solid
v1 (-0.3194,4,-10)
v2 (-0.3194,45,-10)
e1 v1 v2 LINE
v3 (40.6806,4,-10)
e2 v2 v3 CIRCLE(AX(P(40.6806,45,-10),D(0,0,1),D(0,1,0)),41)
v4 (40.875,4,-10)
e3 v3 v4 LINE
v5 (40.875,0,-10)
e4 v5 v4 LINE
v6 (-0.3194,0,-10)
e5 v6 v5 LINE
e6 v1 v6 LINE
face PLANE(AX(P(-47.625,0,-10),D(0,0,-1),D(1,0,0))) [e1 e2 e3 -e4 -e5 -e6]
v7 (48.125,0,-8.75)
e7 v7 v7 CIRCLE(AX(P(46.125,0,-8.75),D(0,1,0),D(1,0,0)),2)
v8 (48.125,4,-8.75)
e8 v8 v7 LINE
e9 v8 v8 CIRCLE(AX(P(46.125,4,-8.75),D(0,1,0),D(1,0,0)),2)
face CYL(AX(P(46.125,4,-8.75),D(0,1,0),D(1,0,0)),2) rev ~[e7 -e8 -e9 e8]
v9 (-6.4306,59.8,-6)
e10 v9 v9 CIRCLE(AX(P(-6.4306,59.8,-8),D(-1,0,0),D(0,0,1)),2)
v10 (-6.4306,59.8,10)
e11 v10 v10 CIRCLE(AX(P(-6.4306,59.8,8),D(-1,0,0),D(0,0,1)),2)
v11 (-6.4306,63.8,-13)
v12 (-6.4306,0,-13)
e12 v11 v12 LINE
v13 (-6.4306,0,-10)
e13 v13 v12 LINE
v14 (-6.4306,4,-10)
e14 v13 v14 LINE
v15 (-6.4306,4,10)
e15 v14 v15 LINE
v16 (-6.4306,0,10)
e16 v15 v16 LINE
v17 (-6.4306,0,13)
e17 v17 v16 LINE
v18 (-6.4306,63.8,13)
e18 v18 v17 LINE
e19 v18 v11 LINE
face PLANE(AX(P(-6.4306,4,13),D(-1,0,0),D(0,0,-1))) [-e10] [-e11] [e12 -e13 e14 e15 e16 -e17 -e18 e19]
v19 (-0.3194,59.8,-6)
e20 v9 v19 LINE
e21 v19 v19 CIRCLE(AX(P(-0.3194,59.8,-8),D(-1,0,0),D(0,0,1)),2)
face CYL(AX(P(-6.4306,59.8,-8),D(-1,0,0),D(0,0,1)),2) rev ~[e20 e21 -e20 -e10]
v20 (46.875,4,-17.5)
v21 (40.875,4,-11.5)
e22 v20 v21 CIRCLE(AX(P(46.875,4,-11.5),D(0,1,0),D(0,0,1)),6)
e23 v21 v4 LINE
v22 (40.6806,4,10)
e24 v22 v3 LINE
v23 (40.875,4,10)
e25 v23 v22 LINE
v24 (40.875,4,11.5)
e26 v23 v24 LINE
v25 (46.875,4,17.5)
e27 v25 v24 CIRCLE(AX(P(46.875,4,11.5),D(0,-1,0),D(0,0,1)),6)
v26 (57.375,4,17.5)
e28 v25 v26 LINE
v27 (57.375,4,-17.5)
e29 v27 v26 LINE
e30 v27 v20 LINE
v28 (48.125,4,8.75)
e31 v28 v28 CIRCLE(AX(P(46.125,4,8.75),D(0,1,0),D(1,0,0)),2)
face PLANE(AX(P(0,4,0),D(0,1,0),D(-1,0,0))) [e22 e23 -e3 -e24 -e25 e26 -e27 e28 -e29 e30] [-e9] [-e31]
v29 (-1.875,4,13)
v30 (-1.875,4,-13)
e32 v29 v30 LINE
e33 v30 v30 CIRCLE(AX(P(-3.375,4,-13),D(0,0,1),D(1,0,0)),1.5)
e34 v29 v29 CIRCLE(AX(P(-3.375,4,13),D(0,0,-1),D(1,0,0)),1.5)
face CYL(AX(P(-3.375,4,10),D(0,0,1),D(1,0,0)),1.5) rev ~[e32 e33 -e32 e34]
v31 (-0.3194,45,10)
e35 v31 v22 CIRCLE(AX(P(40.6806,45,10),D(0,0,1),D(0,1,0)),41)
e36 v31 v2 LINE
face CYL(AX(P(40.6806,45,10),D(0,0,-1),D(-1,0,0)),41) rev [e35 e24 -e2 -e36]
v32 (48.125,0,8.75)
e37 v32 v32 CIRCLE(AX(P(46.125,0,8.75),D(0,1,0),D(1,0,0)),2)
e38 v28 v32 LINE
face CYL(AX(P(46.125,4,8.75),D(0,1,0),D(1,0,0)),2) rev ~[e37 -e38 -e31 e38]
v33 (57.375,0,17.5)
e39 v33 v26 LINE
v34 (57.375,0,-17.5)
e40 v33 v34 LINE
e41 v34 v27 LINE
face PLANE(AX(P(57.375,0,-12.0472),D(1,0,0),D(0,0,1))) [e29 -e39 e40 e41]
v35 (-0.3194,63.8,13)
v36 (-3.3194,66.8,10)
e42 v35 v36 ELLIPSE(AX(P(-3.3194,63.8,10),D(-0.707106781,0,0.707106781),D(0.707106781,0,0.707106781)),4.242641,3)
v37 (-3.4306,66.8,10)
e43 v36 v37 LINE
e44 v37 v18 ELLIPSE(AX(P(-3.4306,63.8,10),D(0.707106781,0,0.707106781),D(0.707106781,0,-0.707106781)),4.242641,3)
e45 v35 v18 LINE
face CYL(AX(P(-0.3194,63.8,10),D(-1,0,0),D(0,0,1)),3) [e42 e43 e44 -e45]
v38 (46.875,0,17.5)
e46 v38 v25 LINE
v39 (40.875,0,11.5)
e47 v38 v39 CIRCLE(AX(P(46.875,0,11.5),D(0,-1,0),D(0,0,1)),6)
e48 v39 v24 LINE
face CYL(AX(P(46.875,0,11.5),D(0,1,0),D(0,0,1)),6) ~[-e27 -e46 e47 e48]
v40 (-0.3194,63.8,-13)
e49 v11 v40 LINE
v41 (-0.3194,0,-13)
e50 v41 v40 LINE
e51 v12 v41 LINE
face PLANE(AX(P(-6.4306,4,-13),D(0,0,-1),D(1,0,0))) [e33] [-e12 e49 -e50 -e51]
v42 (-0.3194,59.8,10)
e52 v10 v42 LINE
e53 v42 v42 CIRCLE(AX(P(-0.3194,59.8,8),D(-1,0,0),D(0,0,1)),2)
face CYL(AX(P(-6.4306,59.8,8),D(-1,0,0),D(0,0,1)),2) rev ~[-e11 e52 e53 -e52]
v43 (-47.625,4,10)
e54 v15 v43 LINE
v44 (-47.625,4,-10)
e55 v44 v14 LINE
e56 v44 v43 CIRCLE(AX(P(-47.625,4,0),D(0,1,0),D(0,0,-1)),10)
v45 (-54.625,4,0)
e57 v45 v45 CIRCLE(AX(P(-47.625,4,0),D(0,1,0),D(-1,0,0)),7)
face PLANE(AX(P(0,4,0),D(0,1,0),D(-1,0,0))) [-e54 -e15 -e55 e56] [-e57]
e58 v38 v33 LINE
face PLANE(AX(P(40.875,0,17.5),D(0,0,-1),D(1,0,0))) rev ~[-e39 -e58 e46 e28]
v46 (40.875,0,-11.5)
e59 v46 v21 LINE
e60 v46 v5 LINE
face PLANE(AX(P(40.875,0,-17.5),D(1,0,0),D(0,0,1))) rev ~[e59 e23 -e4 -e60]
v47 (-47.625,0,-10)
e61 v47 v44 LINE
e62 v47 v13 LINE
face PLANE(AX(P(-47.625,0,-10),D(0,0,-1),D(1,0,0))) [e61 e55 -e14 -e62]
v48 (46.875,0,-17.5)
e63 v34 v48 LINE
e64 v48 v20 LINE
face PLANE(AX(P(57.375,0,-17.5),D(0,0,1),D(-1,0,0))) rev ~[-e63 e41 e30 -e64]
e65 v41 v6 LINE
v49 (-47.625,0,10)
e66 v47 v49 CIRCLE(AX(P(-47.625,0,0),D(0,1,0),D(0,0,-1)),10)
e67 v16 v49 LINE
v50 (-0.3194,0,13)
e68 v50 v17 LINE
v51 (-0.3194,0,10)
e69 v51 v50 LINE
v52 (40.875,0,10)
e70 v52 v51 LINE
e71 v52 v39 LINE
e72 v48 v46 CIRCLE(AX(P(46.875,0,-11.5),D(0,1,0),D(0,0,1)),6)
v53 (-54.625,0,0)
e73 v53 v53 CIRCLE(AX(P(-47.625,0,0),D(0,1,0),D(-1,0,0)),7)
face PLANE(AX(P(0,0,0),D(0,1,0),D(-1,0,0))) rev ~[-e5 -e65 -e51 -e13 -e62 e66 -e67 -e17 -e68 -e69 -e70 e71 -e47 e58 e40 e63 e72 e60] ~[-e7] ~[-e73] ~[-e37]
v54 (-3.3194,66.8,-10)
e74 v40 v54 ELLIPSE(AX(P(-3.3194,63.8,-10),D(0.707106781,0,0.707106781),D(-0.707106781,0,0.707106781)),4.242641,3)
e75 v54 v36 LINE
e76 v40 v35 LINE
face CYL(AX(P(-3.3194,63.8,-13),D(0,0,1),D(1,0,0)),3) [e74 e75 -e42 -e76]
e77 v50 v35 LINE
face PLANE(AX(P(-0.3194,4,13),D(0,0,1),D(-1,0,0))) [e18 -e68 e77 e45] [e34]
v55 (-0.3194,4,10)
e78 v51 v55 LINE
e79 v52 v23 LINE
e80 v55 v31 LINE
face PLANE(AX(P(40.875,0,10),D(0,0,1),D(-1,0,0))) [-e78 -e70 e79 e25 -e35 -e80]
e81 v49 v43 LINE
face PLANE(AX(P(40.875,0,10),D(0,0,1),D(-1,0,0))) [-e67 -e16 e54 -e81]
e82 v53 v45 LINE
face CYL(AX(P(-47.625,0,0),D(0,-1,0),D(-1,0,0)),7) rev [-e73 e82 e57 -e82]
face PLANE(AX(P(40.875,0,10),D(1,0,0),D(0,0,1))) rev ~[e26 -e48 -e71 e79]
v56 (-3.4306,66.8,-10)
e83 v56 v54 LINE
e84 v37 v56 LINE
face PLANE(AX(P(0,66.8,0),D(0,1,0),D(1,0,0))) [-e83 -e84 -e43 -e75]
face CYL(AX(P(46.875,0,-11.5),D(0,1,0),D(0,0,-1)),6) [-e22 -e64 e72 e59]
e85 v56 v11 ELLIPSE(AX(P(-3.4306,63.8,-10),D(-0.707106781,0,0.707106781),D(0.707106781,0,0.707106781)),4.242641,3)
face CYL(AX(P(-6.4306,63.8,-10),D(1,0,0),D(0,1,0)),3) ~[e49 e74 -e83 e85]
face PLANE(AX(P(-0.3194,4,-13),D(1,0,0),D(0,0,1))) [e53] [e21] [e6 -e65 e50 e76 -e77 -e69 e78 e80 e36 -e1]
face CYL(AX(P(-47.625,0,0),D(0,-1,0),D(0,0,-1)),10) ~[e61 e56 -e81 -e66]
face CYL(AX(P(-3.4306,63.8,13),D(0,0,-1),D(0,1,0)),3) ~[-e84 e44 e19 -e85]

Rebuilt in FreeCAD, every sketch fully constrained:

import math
import FreeCAD as App
import Part
import Sketcher
from FreeCAD import Vector


def edges_at(feature, points):
    """Names of the edges that pass closest to the given points."""
    edges = feature.Shape.Edges
    near = lambda p: min(range(len(edges)), key=lambda i: edges[i].distToShape(Part.Vertex(*p))[0])
    return sorted({f"Edge{near(p) + 1}" for p in points})


def add_polygon(sketch, points):
    """Adds a closed chain of lines whose ends are joined by coincident constraints."""
    first, n = sketch.GeometryCount, len(points)
    for a, b in zip(points, points[1:] + points[:1]):
        sketch.addGeometry(Part.LineSegment(App.Vector(*a, 0), App.Vector(*b, 0)), False)
    for i in range(n):
        sketch.addConstraint(Sketcher.Constraint("Coincident", first + i, 2, first + (i + 1) % n, 1))

doc = App.newDocument("Part")
body = doc.addObject("PartDesign::Body", "Body")

sketch1 = doc.addObject("Sketcher::SketchObject", "Sketch")
body.addObject(sketch1)
sketch1.AttachmentSupport = (doc.XZ_Plane, [""])
sketch1.MapMode = "FlatFace"
sketch1.addGeometry(Part.LineSegment(Vector(57, 18, 0), Vector(57, -18, 0)), False)
sketch1.addGeometry(Part.LineSegment(Vector(57, -18, 0), Vector(41, -18, 0)), False)
sketch1.addGeometry(Part.LineSegment(Vector(41, -18, 0), Vector(41, -10, 0)), False)
sketch1.addGeometry(Part.LineSegment(Vector(41, -10, 0), Vector(-48, -10, 0)), False)
sketch1.addGeometry(Part.ArcOfCircle(Part.Circle(Vector(-48, 0, 0), Vector(0, 0, 1), 10), math.radians(90), math.radians(270)), False)
sketch1.addGeometry(Part.LineSegment(Vector(-48, 10, 0), Vector(41, 10, 0)), False)
sketch1.addGeometry(Part.LineSegment(Vector(41, 10, 0), Vector(41, 18, 0)), False)
sketch1.addGeometry(Part.LineSegment(Vector(41, 18, 0), Vector(57, 18, 0)), False)
sketch1.addGeometry(Part.Circle(Vector(-48, 0, 0), Vector(0, 0, 1), 7), False)
sketch1.addConstraint(Sketcher.Constraint("Coincident", 0, 2, 1, 1))
sketch1.addConstraint(Sketcher.Constraint("Coincident", 1, 2, 2, 1))
sketch1.addConstraint(Sketcher.Constraint("Coincident", 2, 2, 3, 1))
sketch1.addConstraint(Sketcher.Constraint("Tangent", 3, 2, 4, 2))
sketch1.addConstraint(Sketcher.Constraint("Tangent", 4, 1, 5, 1))
sketch1.addConstraint(Sketcher.Constraint("Coincident", 5, 2, 6, 1))
sketch1.addConstraint(Sketcher.Constraint("Coincident", 6, 2, 7, 1))
sketch1.addConstraint(Sketcher.Constraint("Coincident", 7, 2, 0, 1))
sketch1.addConstraint(Sketcher.Constraint("Vertical", 0))
sketch1.addConstraint(Sketcher.Constraint("Horizontal", 1))
sketch1.addConstraint(Sketcher.Constraint("Vertical", 2))
sketch1.addConstraint(Sketcher.Constraint("Horizontal", 3))
sketch1.addConstraint(Sketcher.Constraint("Horizontal", 5))
sketch1.addConstraint(Sketcher.Constraint("Vertical", 6))
sketch1.addConstraint(Sketcher.Constraint("Horizontal", 7))
sketch1.addConstraint(Sketcher.Constraint("Coincident", 8, 3, 4, 3))
sketch1.addConstraint(Sketcher.Constraint("Symmetric", 2, 2, 5, 2, -1))
sketch1.addConstraint(Sketcher.Constraint("Equal", 2, 6))
sketch1.addConstraint(Sketcher.Constraint("Diameter", 8, 14.0))
sketch1.addConstraint(Sketcher.Constraint("Radius", 4, 10.0))
sketch1.addConstraint(Sketcher.Constraint("DistanceY", 0, 2, 0, 1, 35.0))
sketch1.addConstraint(Sketcher.Constraint("DistanceX", 1, 2, 1, 1, 16.5))
sketch1.addConstraint(Sketcher.Constraint("DistanceX", 4, 3, 0, 2, 105.0))
sketch1.addConstraint(Sketcher.Constraint("DistanceX", 4, 3, -1, 1, 47.625))
pad1 = doc.addObject("PartDesign::Pad", "Pad")
body.addObject(pad1)
pad1.Profile = sketch1
pad1.Length = 4
pad1.Reversed = True

sketch2 = doc.addObject("Sketcher::SketchObject", "Sketch001")
body.addObject(sketch2)
sketch2.AttachmentSupport = (doc.XZ_Plane, [""])
sketch2.MapMode = "FlatFace"
sketch2.AttachmentOffset = App.Placement(Vector(0, 0, -4), App.Rotation())
sketch2.addGeometry(Part.Circle(Vector(46.1, 8.8, 0), Vector(0, 0, 1), 2), False)
sketch2.addGeometry(Part.Circle(Vector(46.1, -8.8, 0), Vector(0, 0, 1), 2), False)
sketch2.addConstraint(Sketcher.Constraint("Equal", 0, 1))
sketch2.addConstraint(Sketcher.Constraint("Symmetric", 0, 3, 1, 3, -1))
sketch2.addConstraint(Sketcher.Constraint("Diameter", 0, 4.0))
sketch2.addConstraint(Sketcher.Constraint("DistanceY", 1, 3, 0, 3, 17.5))
sketch2.addConstraint(Sketcher.Constraint("DistanceX", -1, 1, 0, 3, 46.125))
pocket1 = doc.addObject("PartDesign::Pocket", "Pocket")
body.addObject(pocket1)
pocket1.Profile = sketch2
pocket1.Type = "ThroughAll"
pocket1.Reversed = True
doc.recompute()

fillet = doc.addObject("PartDesign::Fillet", "Fillet")
body.addObject(fillet)
fillet.Base = (pocket1, edges_at(pocket1, [(40.875, 2, -17.5), (40.875, 2, 17.5)]))
fillet.Radius = 6

sketch3 = doc.addObject("Sketcher::SketchObject", "Sketch002")
body.addObject(sketch3)
sketch3.AttachmentSupport = (doc.XZ_Plane, [""])
sketch3.MapMode = "FlatFace"
sketch3.AttachmentOffset = App.Placement(Vector(0, 0, -4), App.Rotation())
add_polygon(sketch3, [(-6, 13), (0, 13), (0, -13), (-6, -13)])
sketch3.addConstraint(Sketcher.Constraint("Horizontal", 0))
sketch3.addConstraint(Sketcher.Constraint("Vertical", 1))
sketch3.addConstraint(Sketcher.Constraint("Horizontal", 2))
sketch3.addConstraint(Sketcher.Constraint("Vertical", 3))
sketch3.addConstraint(Sketcher.Constraint("DistanceY", 1, 2, 1, 1, 26.0))
sketch3.addConstraint(Sketcher.Constraint("DistanceY", -1, 1, 0, 2, 13.0))
sketch3.addConstraint(Sketcher.Constraint("DistanceX", 0, 1, 0, 2, 6.1112))
sketch3.addConstraint(Sketcher.Constraint("DistanceX", 0, 2, -1, 1, 0.3194))
pad2 = doc.addObject("PartDesign::Pad", "Pad001")
body.addObject(pad2)
pad2.Profile = sketch3
pad2.Type = "TwoLengths"
pad2.Length = 62.8
pad2.Length2 = 4
pad2.Reversed = True

sketch4 = doc.addObject("Sketcher::SketchObject", "Sketch003")
body.addObject(sketch4)
sketch4.AttachmentSupport = (doc.XY_Plane, [""])
sketch4.MapMode = "FlatFace"
sketch4.AttachmentOffset = App.Placement(Vector(0, 0, 10), App.Rotation())
sketch4.addGeometry(Part.Circle(Vector(-3.4, 4, 0), Vector(0, 0, 1), 1.5), False)
sketch4.addConstraint(Sketcher.Constraint("Diameter", 0, 3.0))
sketch4.addConstraint(Sketcher.Constraint("DistanceY", -1, 1, 0, 3, 4.0))
sketch4.addConstraint(Sketcher.Constraint("DistanceX", 0, 3, -1, 1, 3.375))
pocket2 = doc.addObject("PartDesign::Pocket", "Pocket001")
body.addObject(pocket2)
pocket2.Profile = sketch4
pocket2.Type = "ThroughAll"
pocket2.Midplane = True

sketch5 = doc.addObject("Sketcher::SketchObject", "Sketch004")
body.addObject(sketch5)
sketch5.AttachmentSupport = (doc.YZ_Plane, [""])
sketch5.MapMode = "FlatFace"
sketch5.AttachmentOffset = App.Placement(Vector(0, 0, -6.4306), App.Rotation())
sketch5.addGeometry(Part.Circle(Vector(59.8, -8, 0), Vector(0, 0, 1), 2), False)
sketch5.addGeometry(Part.Circle(Vector(59.8, 8, 0), Vector(0, 0, 1), 2), False)
sketch5.addConstraint(Sketcher.Constraint("Equal", 0, 1))
sketch5.addConstraint(Sketcher.Constraint("Symmetric", 0, 3, 1, 3, -1))
sketch5.addConstraint(Sketcher.Constraint("Diameter", 0, 4.0))
sketch5.addConstraint(Sketcher.Constraint("DistanceY", 0, 3, 1, 3, 16.0))
sketch5.addConstraint(Sketcher.Constraint("DistanceX", -1, 1, 0, 3, 59.8))
pocket3 = doc.addObject("PartDesign::Pocket", "Pocket002")
body.addObject(pocket3)
pocket3.Profile = sketch5
pocket3.Type = "ThroughAll"
pocket3.Reversed = True
doc.recompute()

fillet2 = doc.addObject("PartDesign::Fillet", "Fillet001")
body.addObject(fillet2)
fillet2.Base = (pocket3, edges_at(pocket3, [(-0.319, 4, 0)]))
fillet2.Radius = 41
doc.recompute()

fillet3 = doc.addObject("PartDesign::Fillet", "Fillet002")
body.addObject(fillet3)
fillet3.Base = (fillet2, edges_at(fillet2, [
    (-0.319, 66.8, 0),
    (-3.375, 66.8, -13),
    (-6.431, 66.8, 0),
    (-3.375, 66.8, 13),
]))
fillet3.Radius = 3

doc.recompute()
